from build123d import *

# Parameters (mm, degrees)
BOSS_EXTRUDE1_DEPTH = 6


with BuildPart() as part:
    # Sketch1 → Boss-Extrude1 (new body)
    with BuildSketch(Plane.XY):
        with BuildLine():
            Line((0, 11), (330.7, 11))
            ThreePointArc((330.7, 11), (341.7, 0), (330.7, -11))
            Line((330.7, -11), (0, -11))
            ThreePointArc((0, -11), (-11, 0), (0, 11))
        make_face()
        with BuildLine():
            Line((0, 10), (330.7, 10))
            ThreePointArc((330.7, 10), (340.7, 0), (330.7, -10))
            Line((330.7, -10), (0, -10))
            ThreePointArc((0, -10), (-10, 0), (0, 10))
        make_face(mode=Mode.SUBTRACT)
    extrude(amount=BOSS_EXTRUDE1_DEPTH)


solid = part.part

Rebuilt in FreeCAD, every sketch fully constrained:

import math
import FreeCAD as App
import Part
import Sketcher
from FreeCAD import Vector

doc = App.newDocument("Part")
body = doc.addObject("PartDesign::Body", "Body")

# Sketch on XY plane
sketch1 = body.newObject("Sketcher::SketchObject", "Sketch")
sketch1.AttachmentSupport = (doc.getObject("XY_Plane"), [""])
sketch1.MapMode = "FlatFace"
sketch1.addGeometry(Part.LineSegment(Vector(331, 11, 0), Vector(0, 11, 0)), False)
sketch1.addGeometry(Part.ArcOfCircle(Part.Circle(Vector(0, 0, 0), Vector(0, 0, 1), 11), math.radians(90), math.radians(270)), False)
sketch1.addGeometry(Part.LineSegment(Vector(0, -11, 0), Vector(331, -11, 0)), False)
sketch1.addGeometry(Part.ArcOfCircle(Part.Circle(Vector(331, 0, 0), Vector(0, 0, 1), 11), math.radians(-90), math.radians(90)), False)
sketch1.addGeometry(Part.LineSegment(Vector(0, 10, 0), Vector(331, 10, 0)), False)
sketch1.addGeometry(Part.ArcOfCircle(Part.Circle(Vector(331, 0, 0), Vector(0, 0, 1), 10), math.radians(-90), math.radians(90)), False)
sketch1.addGeometry(Part.LineSegment(Vector(331, -10, 0), Vector(0, -10, 0)), False)
sketch1.addGeometry(Part.ArcOfCircle(Part.Circle(Vector(0, 0, 0), Vector(0, 0, 1), 10), math.radians(90), math.radians(270)), False)
sketch1.addConstraint(Sketcher.Constraint("Tangent", 0, 2, 1, 1))
sketch1.addConstraint(Sketcher.Constraint("Tangent", 1, 2, 2, 1))
sketch1.addConstraint(Sketcher.Constraint("Tangent", 2, 2, 3, 1))
sketch1.addConstraint(Sketcher.Constraint("Tangent", 3, 2, 0, 1))
sketch1.addConstraint(Sketcher.Constraint("Tangent", 4, 2, 5, 2))
sketch1.addConstraint(Sketcher.Constraint("Tangent", 5, 1, 6, 1))
sketch1.addConstraint(Sketcher.Constraint("Tangent", 6, 2, 7, 2))
sketch1.addConstraint(Sketcher.Constraint("Tangent", 7, 1, 4, 1))
sketch1.addConstraint(Sketcher.Constraint("Horizontal", 0))
sketch1.addConstraint(Sketcher.Constraint("Horizontal", 2))
sketch1.addConstraint(Sketcher.Constraint("Horizontal", 4))
sketch1.addConstraint(Sketcher.Constraint("Horizontal", 6))
sketch1.addConstraint(Sketcher.Constraint("Coincident", 1, 3, -1, 1))
sketch1.addConstraint(Sketcher.Constraint("Coincident", 7, 3, -1, 1))
sketch1.addConstraint(Sketcher.Constraint("Vertical", 5, 3, 2, 2))
sketch1.addConstraint(Sketcher.Constraint("Radius", 1, 11.0))
sketch1.addConstraint(Sketcher.Constraint("Radius", 5, 10.0))
sketch1.addConstraint(Sketcher.Constraint("DistanceX", 0, 2, 0, 1, 330.7))
pad1 = body.newObject("PartDesign::Pad", "Pad")
pad1.Profile = sketch1
pad1.Length = 6

doc.recompute()
